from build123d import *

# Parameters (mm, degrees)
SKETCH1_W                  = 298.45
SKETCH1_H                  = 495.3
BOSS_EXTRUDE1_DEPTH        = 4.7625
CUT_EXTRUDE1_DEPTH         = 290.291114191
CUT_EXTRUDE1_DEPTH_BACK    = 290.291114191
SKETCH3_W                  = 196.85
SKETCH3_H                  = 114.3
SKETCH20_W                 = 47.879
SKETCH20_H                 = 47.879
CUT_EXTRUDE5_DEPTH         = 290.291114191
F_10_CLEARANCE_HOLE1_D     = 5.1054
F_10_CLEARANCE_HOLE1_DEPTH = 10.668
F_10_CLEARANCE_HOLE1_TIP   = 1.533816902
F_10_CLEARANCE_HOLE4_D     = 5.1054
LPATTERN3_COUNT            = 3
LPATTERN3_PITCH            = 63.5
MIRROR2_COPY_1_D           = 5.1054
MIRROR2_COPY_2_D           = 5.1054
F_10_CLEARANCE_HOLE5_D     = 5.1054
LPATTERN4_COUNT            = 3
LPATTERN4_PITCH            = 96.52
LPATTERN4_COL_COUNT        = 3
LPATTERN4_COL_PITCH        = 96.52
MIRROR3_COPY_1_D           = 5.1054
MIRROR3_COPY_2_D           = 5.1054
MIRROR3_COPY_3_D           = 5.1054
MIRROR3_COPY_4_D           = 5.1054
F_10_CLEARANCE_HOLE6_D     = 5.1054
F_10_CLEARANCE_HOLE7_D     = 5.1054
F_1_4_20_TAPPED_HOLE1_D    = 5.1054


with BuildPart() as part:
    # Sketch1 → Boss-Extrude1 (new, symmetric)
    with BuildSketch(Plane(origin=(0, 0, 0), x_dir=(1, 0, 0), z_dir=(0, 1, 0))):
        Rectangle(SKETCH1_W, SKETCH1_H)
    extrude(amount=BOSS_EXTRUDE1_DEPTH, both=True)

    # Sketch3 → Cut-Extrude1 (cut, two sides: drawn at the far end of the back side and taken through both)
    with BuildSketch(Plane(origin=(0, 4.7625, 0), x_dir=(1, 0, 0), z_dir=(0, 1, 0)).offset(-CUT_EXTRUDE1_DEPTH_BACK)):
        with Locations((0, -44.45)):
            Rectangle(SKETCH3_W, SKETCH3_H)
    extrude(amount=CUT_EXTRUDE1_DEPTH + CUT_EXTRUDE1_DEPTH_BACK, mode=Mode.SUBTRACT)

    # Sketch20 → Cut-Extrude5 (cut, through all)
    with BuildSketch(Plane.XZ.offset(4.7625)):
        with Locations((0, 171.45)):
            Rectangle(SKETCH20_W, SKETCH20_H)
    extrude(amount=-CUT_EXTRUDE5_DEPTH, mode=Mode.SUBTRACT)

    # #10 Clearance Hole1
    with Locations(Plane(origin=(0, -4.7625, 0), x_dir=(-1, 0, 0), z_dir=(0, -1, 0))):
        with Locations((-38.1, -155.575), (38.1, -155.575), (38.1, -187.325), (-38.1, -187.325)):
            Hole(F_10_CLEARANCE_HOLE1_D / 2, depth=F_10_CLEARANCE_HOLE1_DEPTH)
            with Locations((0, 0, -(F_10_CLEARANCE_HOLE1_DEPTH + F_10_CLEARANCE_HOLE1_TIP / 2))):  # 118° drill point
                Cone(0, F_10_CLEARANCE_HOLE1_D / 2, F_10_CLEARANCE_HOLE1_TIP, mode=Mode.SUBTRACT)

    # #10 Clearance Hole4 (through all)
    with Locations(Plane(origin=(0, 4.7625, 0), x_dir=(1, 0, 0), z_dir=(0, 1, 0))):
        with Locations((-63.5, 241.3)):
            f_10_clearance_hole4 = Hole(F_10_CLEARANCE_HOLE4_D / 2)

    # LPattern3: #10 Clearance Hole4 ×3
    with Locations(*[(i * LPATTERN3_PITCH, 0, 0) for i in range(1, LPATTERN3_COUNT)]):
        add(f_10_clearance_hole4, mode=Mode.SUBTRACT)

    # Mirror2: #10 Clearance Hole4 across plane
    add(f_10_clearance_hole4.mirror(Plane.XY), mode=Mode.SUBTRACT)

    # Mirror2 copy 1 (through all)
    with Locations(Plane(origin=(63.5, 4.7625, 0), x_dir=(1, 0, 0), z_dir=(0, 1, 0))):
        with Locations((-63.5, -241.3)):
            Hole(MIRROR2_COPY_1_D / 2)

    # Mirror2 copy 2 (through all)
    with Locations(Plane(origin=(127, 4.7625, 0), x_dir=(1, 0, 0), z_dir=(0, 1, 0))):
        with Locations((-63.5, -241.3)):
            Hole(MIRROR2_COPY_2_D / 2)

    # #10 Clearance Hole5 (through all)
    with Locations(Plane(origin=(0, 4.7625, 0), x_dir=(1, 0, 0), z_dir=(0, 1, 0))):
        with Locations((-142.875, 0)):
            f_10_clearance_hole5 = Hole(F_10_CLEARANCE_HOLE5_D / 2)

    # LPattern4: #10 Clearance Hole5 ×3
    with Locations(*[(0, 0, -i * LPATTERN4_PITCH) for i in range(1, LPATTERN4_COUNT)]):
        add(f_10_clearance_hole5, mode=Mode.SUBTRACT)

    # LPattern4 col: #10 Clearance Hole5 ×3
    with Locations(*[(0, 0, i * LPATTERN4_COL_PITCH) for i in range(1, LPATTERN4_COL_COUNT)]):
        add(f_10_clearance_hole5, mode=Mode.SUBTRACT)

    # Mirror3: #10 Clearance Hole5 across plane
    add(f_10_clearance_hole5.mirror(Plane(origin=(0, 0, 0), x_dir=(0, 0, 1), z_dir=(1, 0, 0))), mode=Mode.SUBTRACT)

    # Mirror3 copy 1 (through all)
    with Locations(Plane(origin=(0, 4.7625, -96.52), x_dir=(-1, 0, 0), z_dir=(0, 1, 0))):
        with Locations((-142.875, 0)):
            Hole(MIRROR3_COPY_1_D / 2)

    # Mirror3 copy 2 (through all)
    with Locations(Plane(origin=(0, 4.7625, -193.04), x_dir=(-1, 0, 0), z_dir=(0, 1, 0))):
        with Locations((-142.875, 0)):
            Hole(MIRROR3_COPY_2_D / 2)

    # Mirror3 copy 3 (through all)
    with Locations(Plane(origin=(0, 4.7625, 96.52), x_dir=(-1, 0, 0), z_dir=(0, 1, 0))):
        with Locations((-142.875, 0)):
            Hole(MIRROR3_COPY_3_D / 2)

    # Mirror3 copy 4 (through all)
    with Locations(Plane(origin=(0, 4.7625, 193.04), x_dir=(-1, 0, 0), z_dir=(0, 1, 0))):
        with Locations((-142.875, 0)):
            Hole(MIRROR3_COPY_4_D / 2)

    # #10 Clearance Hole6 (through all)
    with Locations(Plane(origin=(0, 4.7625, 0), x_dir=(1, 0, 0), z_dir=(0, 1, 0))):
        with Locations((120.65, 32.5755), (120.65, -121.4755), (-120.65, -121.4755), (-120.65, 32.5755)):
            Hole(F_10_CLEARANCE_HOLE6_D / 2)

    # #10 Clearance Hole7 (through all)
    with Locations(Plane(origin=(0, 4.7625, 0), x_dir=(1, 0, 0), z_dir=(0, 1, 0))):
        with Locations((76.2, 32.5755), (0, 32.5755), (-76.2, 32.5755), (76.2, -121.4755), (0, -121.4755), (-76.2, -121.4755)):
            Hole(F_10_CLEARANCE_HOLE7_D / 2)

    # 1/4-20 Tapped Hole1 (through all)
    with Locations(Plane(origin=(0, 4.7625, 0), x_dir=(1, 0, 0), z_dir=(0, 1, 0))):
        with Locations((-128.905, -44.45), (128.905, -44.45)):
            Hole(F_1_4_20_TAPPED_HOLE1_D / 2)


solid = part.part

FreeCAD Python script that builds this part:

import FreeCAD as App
import Part
import Sketcher

V = App.Vector
Q = App.Units.Quantity


def add_polygon(sketch, points):
    """Adds a closed chain of lines whose ends are joined by coincident constraints."""
    first, n = sketch.GeometryCount, len(points)
    for a, b in zip(points, points[1:] + points[:1]):
        sketch.addGeometry(Part.LineSegment(App.Vector(*a, 0), App.Vector(*b, 0)), False)
    for i in range(n):
        sketch.addConstraint(Sketcher.Constraint("Coincident", first + i, 2, first + (i + 1) % n, 1))

doc = App.newDocument("Part")
body = doc.addObject("PartDesign::Body", "Body")

sketch1 = body.newObject("Sketcher::SketchObject", "Sketch")
sketch1.AttachmentSupport = (doc.getObject("XZ_Plane"), [""])
sketch1.MapMode = "FlatFace"
add_polygon(sketch1, [(-149, -248), (-149, 248), (149, 248), (149, -248)])
sketch1.addConstraint([
    Sketcher.Constraint("Vertical", 0),
    Sketcher.Constraint("Horizontal", 1),
    Sketcher.Constraint("Vertical", 2),
    Sketcher.Constraint("Horizontal", 3),
    Sketcher.Constraint("Symmetric", 0, 2, 2, 2, -1, 1),
    Sketcher.Constraint("DistanceY", 0, 1, 0, 2, Q("19.5 in")),
    Sketcher.Constraint("DistanceX", 1, 1, 1, 2, Q("11.75 in")),
])
pad1 = body.newObject("PartDesign::Pad", "Pad")
pad1.Profile = sketch1
pad1.Length = Q("0.375 in")
pad1.Midplane = True

sketch2 = body.newObject("Sketcher::SketchObject", "Sketch001")
sketch2.AttachmentSupport = (doc.getObject("XZ_Plane"), [""])
sketch2.MapMode = "FlatFace"
sketch2.AttachmentOffset = App.Placement(V(0, 0, -0.1875 * 25.4), App.Rotation())
add_polygon(sketch2, [(-98, -13), (-98, 102), (98, 102), (98, -13)])
sketch2.addConstraint([
    Sketcher.Constraint("Vertical", 0),
    Sketcher.Constraint("Horizontal", 1),
    Sketcher.Constraint("Vertical", 2),
    Sketcher.Constraint("Horizontal", 3),
    Sketcher.Constraint("DistanceY", 0, 1, 0, 2, Q("4.5 in")),
    Sketcher.Constraint("DistanceY", -1, 1, 0, 2, Q("4 in")),
    Sketcher.Constraint("DistanceX", 1, 1, 1, 2, Q("7.75 in")),
    Sketcher.Constraint("DistanceX", 0, 2, -1, 1, Q("3.875 in")),
])
pocket1 = body.newObject("PartDesign::Pocket", "Pocket")
pocket1.Profile = sketch2
pocket1.Type = "ThroughAll"
pocket1.Midplane = True

sketch3 = body.newObject("Sketcher::SketchObject", "Sketch002")
sketch3.AttachmentSupport = (doc.getObject("XZ_Plane"), [""])
sketch3.MapMode = "FlatFace"
sketch3.AttachmentOffset = App.Placement(V(0, 0, 0.1875 * 25.4), App.Rotation())
add_polygon(sketch3, [(-24, 195), (-24, 148), (24, 148), (24, 195)])
sketch3.addConstraint([
    Sketcher.Constraint("Vertical", 0),
    Sketcher.Constraint("Horizontal", 1),
    Sketcher.Constraint("Vertical", 2),
    Sketcher.Constraint("Horizontal", 3),
    Sketcher.Constraint("Equal", 3, 0),
    Sketcher.Constraint("DistanceX", 1, 1, 1, 2, Q("1.885 in")),
    Sketcher.Constraint("DistanceX", 0, 2, -1, 1, Q("0.9425 in")),
    Sketcher.Constraint("DistanceY", -1, 1, 0, 2, Q("5.8075 in")),
])
pocket2 = body.newObject("PartDesign::Pocket", "Pocket001")
pocket2.Profile = sketch3
pocket2.Type = "ThroughAll"

sketch4 = body.newObject("Sketcher::SketchObject", "Sketch003")
sketch4.AttachmentSupport = (doc.getObject("XZ_Plane"), [""])
sketch4.MapMode = "FlatFace"
sketch4.AttachmentOffset = App.Placement(V(0, 0, 0.1875 * 25.4), App.Rotation())
sketch4.addGeometry([
    Part.Circle(V(38.1, 155.6, 0), V(0, 0, 1), 2.6),
    Part.Circle(V(-38.1, 155.6, 0), V(0, 0, 1), 2.6),
    Part.Circle(V(-38.1, 187.3, 0), V(0, 0, 1), 2.6),
    Part.Circle(V(38.1, 187.3, 0), V(0, 0, 1), 2.6),
], False)
sketch4.addConstraint([
    Sketcher.Constraint("Equal", 0, 1),
    Sketcher.Constraint("Equal", 1, 2),
    Sketcher.Constraint("Equal", 2, 3),
    Sketcher.Constraint("Symmetric", 0, 3, 1, 3, -2),
    Sketcher.Constraint("Symmetric", 2, 3, 3, 3, -2),
    Sketcher.Constraint("Vertical", 1, 3, 2, 3),
    Sketcher.Constraint("Diameter", 0, Q("0.201 in")),
    Sketcher.Constraint("DistanceX", 1, 3, 0, 3, Q("3 in")),
    Sketcher.Constraint("DistanceY", 1, 3, 2, 3, Q("1.25 in")),
    Sketcher.Constraint("DistanceY", -1, 1, 0, 3, Q("6.125 in")),
])
doc.recompute()
hole = body.newObject("PartDesign::Hole", "Hole")
hole.Profile = sketch4
hole.ThreadType = "None"
hole.Diameter = Q("0.201 in")
hole.DepthType = "Dimension"
hole.Depth = Q("0.42 in")
hole.DrillPoint = "Angled"
hole.DrillPointAngle = 118

sketch5 = body.newObject("Sketcher::SketchObject", "Sketch004")
sketch5.AttachmentSupport = (doc.getObject("XZ_Plane"), [""])
sketch5.MapMode = "FlatFace"
sketch5.AttachmentOffset = App.Placement(V(0, 0, -0.1875 * 25.4), App.Rotation())
sketch5.addGeometry(Part.Circle(V(-63.5, -241.3, 0), V(0, 0, 1), 2.6), False)
sketch5.addConstraint([
    Sketcher.Constraint("Diameter", 0, Q("0.201 in")),
    Sketcher.Constraint("DistanceX", 0, 3, -1, 1, Q("2.5 in")),
    Sketcher.Constraint("DistanceY", 0, 3, -1, 1, Q("9.5 in")),
])
doc.recompute()
hole2 = body.newObject("PartDesign::Hole", "Hole001")
hole2.Profile = sketch5
hole2.ThreadType = "None"
hole2.Diameter = Q("0.201 in")
hole2.DepthType = "ThroughAll"
hole2.Reversed = True
doc.recompute()

linearpattern = body.newObject("PartDesign::LinearPattern", "LinearPattern")
linearpattern.Originals = [hole2]
linearpattern.Direction = (doc.getObject("X_Axis"), [""])
linearpattern.Mode = "offset"
linearpattern.Offset = Q("2.5 in")
linearpattern.Occurrences = 3
body.Tip = linearpattern
doc.recompute()

mirrored = body.newObject("PartDesign::Mirrored", "Mirrored")
mirrored.Originals = [hole2]
mirrored.MirrorPlane = (doc.getObject("XY_Plane"), [""])
body.Tip = mirrored

sketch6 = body.newObject("Sketcher::SketchObject", "Sketch005")
sketch6.AttachmentSupport = (doc.getObject("XZ_Plane"), [""])
sketch6.MapMode = "FlatFace"
sketch6.AttachmentOffset = App.Placement(V(0, 0, -0.1875 * 25.4), App.Rotation())
sketch6.addGeometry(Part.Circle(V(0, 241.3, 0), V(0, 0, 1), 2.6), False)
sketch6.addConstraint([
    Sketcher.Constraint("PointOnObject", 0, 3, -2),
    Sketcher.Constraint("Diameter", 0, Q("0.201 in")),
    Sketcher.Constraint("DistanceY", -1, 1, 0, 3, Q("9.5 in")),
])
doc.recompute()
hole3 = body.newObject("PartDesign::Hole", "Hole002")
hole3.Profile = sketch6
hole3.ThreadType = "None"
hole3.Diameter = Q("0.201 in")
hole3.DepthType = "ThroughAll"
hole3.Reversed = True

sketch7 = body.newObject("Sketcher::SketchObject", "Sketch006")
sketch7.AttachmentSupport = (doc.getObject("XZ_Plane"), [""])
sketch7.MapMode = "FlatFace"
sketch7.AttachmentOffset = App.Placement(V(0, 0, -0.1875 * 25.4), App.Rotation())
sketch7.addGeometry(Part.Circle(V(63.5, 241.3, 0), V(0, 0, 1), 2.6), False)
sketch7.addConstraint([
    Sketcher.Constraint("Diameter", 0, Q("0.201 in")),
    Sketcher.Constraint("DistanceX", -1, 1, 0, 3, Q("2.5 in")),
    Sketcher.Constraint("DistanceY", -1, 1, 0, 3, Q("9.5 in")),
])
doc.recompute()
hole4 = body.newObject("PartDesign::Hole", "Hole003")
hole4.Profile = sketch7
hole4.ThreadType = "None"
hole4.Diameter = Q("0.201 in")
hole4.DepthType = "ThroughAll"
hole4.Reversed = True

sketch8 = body.newObject("Sketcher::SketchObject", "Sketch007")
sketch8.AttachmentSupport = (doc.getObject("XZ_Plane"), [""])
sketch8.MapMode = "FlatFace"
sketch8.AttachmentOffset = App.Placement(V(0, 0, -0.1875 * 25.4), App.Rotation())
sketch8.addGeometry(Part.Circle(V(-142.9, 0, 0), V(0, 0, 1), 2.6), False)
sketch8.addConstraint([
    Sketcher.Constraint("PointOnObject", 0, 3, -1),
    Sketcher.Constraint("Diameter", 0, Q("0.201 in")),
    Sketcher.Constraint("DistanceX", 0, 3, -1, 1, Q("5.625 in")),
])
doc.recompute()
hole5 = body.newObject("PartDesign::Hole", "Hole004")
hole5.Profile = sketch8
hole5.ThreadType = "None"
hole5.Diameter = Q("0.201 in")
hole5.DepthType = "ThroughAll"
hole5.Reversed = True
doc.recompute()

linearpattern2 = body.newObject("PartDesign::LinearPattern", "LinearPattern001")
linearpattern2.Originals = [hole5]
linearpattern2.Direction = (doc.getObject("Z_Axis"), [""])
linearpattern2.Mode = "offset"
linearpattern2.Offset = Q("3.8 in")
linearpattern2.Occurrences = 3
linearpattern2.Reversed = True
body.Tip = linearpattern2
doc.recompute()

linearpattern3 = body.newObject("PartDesign::LinearPattern", "LinearPattern002")
linearpattern3.Originals = [hole5]
linearpattern3.Direction = (doc.getObject("Z_Axis"), [""])
linearpattern3.Mode = "offset"
linearpattern3.Offset = Q("3.8 in")
linearpattern3.Occurrences = 3
body.Tip = linearpattern3
doc.recompute()

mirrored2 = body.newObject("PartDesign::Mirrored", "Mirrored001")
mirrored2.Originals = [hole5]
mirrored2.MirrorPlane = (doc.getObject("YZ_Plane"), [""])
body.Tip = mirrored2

sketch9 = body.newObject("Sketcher::SketchObject", "Sketch008")
sketch9.AttachmentSupport = (doc.getObject("XZ_Plane"), [""])
sketch9.MapMode = "FlatFace"
sketch9.AttachmentOffset = App.Placement(V(0, 0, -0.1875 * 25.4), App.Rotation())
sketch9.addGeometry(Part.Circle(V(142.9, -96.5, 0), V(0, 0, 1), 2.6), False)
sketch9.addConstraint([
    Sketcher.Constraint("Diameter", 0, Q("0.201 in")),
    Sketcher.Constraint("DistanceY", 0, 3, -1, 1, Q("3.8 in")),
    Sketcher.Constraint("DistanceX", -1, 1, 0, 3, Q("5.625 in")),
])
doc.recompute()
hole6 = body.newObject("PartDesign::Hole", "Hole005")
hole6.Profile = sketch9
hole6.ThreadType = "None"
hole6.Diameter = Q("0.201 in")
hole6.DepthType = "ThroughAll"
hole6.Reversed = True

sketch10 = body.newObject("Sketcher::SketchObject", "Sketch009")
sketch10.AttachmentSupport = (doc.getObject("XZ_Plane"), [""])
sketch10.MapMode = "FlatFace"
sketch10.AttachmentOffset = App.Placement(V(0, 0, -0.1875 * 25.4), App.Rotation())
sketch10.addGeometry(Part.Circle(V(142.9, -193, 0), V(0, 0, 1), 2.6), False)
sketch10.addConstraint([
    Sketcher.Constraint("Diameter", 0, Q("0.201 in")),
    Sketcher.Constraint("DistanceY", 0, 3, -1, 1, Q("7.6 in")),
    Sketcher.Constraint("DistanceX", -1, 1, 0, 3, Q("5.625 in")),
])
doc.recompute()
hole7 = body.newObject("PartDesign::Hole", "Hole006")
hole7.Profile = sketch10
hole7.ThreadType = "None"
hole7.Diameter = Q("0.201 in")
hole7.DepthType = "ThroughAll"
hole7.Reversed = True

sketch11 = body.newObject("Sketcher::SketchObject", "Sketch010")
sketch11.AttachmentSupport = (doc.getObject("XZ_Plane"), [""])
sketch11.MapMode = "FlatFace"
sketch11.AttachmentOffset = App.Placement(V(0, 0, -0.1875 * 25.4), App.Rotation())
sketch11.addGeometry(Part.Circle(V(142.9, 96.5, 0), V(0, 0, 1), 2.6), False)
sketch11.addConstraint([
    Sketcher.Constraint("Diameter", 0, Q("0.201 in")),
    Sketcher.Constraint("DistanceY", -1, 1, 0, 3, Q("3.8 in")),
    Sketcher.Constraint("DistanceX", -1, 1, 0, 3, Q("5.625 in")),
])
doc.recompute()
hole8 = body.newObject("PartDesign::Hole", "Hole007")
hole8.Profile = sketch11
hole8.ThreadType = "None"
hole8.Diameter = Q("0.201 in")
hole8.DepthType = "ThroughAll"
hole8.Reversed = True

sketch12 = body.newObject("Sketcher::SketchObject", "Sketch011")
sketch12.AttachmentSupport = (doc.getObject("XZ_Plane"), [""])
sketch12.MapMode = "FlatFace"
sketch12.AttachmentOffset = App.Placement(V(0, 0, -0.1875 * 25.4), App.Rotation())
sketch12.addGeometry(Part.Circle(V(142.9, 193, 0), V(0, 0, 1), 2.6), False)
sketch12.addConstraint([
    Sketcher.Constraint("Diameter", 0, Q("0.201 in")),
    Sketcher.Constraint("DistanceY", -1, 1, 0, 3, Q("7.6 in")),
    Sketcher.Constraint("DistanceX", -1, 1, 0, 3, Q("5.625 in")),
])
doc.recompute()
hole9 = body.newObject("PartDesign::Hole", "Hole008")
hole9.Profile = sketch12
hole9.ThreadType = "None"
hole9.Diameter = Q("0.201 in")
hole9.DepthType = "ThroughAll"
hole9.Reversed = True

sketch13 = body.newObject("Sketcher::SketchObject", "Sketch012")
sketch13.AttachmentSupport = (doc.getObject("XZ_Plane"), [""])
sketch13.MapMode = "FlatFace"
sketch13.AttachmentOffset = App.Placement(V(0, 0, -0.1875 * 25.4), App.Rotation())
sketch13.addGeometry([
    Part.Circle(V(120.7, -32.6, 0), V(0, 0, 1), 2.6),
    Part.Circle(V(120.7, 121.5, 0), V(0, 0, 1), 2.6),
    Part.Circle(V(-120.7, 121.5, 0), V(0, 0, 1), 2.6),
    Part.Circle(V(-120.7, -32.6, 0), V(0, 0, 1), 2.6),
], False)
sketch13.addConstraint([
    Sketcher.Constraint("Equal", 0, 1),
    Sketcher.Constraint("Equal", 1, 2),
    Sketcher.Constraint("Equal", 2, 3),
    Sketcher.Constraint("Symmetric", 1, 3, 2, 3, -2),
    Sketcher.Constraint("Symmetric", 0, 3, 3, 3, -2),
    Sketcher.Constraint("Vertical", 0, 3, 1, 3),
    Sketcher.Constraint("Diameter", 0, Q("0.201 in")),
    Sketcher.Constraint("DistanceX", 2, 3, 1, 3, Q("9.5 in")),
    Sketcher.Constraint("DistanceY", 0, 3, 1, 3, Q("6.065 in")),
    Sketcher.Constraint("DistanceY", 0, 3, -1, 1, Q("1.2825 in")),
])
doc.recompute()
hole10 = body.newObject("PartDesign::Hole", "Hole009")
hole10.Profile = sketch13
hole10.ThreadType = "None"
hole10.Diameter = Q("0.201 in")
hole10.DepthType = "ThroughAll"
hole10.Reversed = True

sketch14 = body.newObject("Sketcher::SketchObject", "Sketch013")
sketch14.AttachmentSupport = (doc.getObject("XZ_Plane"), [""])
sketch14.MapMode = "FlatFace"
sketch14.AttachmentOffset = App.Placement(V(0, 0, -0.1875 * 25.4), App.Rotation())
sketch14.addGeometry([
    Part.Circle(V(76.2, -32.6, 0), V(0, 0, 1), 2.6),
    Part.Circle(V(0, -32.6, 0), V(0, 0, 1), 2.6),
    Part.Circle(V(-76.2, -32.6, 0), V(0, 0, 1), 2.6),
    Part.Circle(V(76.2, 121.5, 0), V(0, 0, 1), 2.6),
    Part.Circle(V(0, 121.5, 0), V(0, 0, 1), 2.6),
    Part.Circle(V(-76.2, 121.5, 0), V(0, 0, 1), 2.6),
], False)
sketch14.addConstraint([
    Sketcher.Constraint("Equal", 0, 1),
    Sketcher.Constraint("Equal", 1, 2),
    Sketcher.Constraint("Equal", 2, 3),
    Sketcher.Constraint("Equal", 3, 4),
    Sketcher.Constraint("Equal", 4, 5),
    Sketcher.Constraint("Symmetric", 0, 3, 2, 3, -2),
    Sketcher.Constraint("Symmetric", 3, 3, 5, 3, -2),
    Sketcher.Constraint("PointOnObject", 1, 3, -2),
    Sketcher.Constraint("PointOnObject", 4, 3, -2),
    Sketcher.Constraint("Horizontal", 0, 3, 1, 3),
    Sketcher.Constraint("Horizontal", 3, 3, 4, 3),
    Sketcher.Constraint("Vertical", 0, 3, 3, 3),
    Sketcher.Constraint("Diameter", 0, Q("0.201 in")),
    Sketcher.Constraint("DistanceX", -1, 1, 0, 3, Q("3 in")),
    Sketcher.Constraint("DistanceY", 0, 3, 3, 3, Q("6.065 in")),
    Sketcher.Constraint("DistanceY", 0, 3, -1, 1, Q("1.2825 in")),
])
doc.recompute()
hole11 = body.newObject("PartDesign::Hole", "Hole010")
hole11.Profile = sketch14
hole11.ThreadType = "None"
hole11.Diameter = Q("0.201 in")
hole11.DepthType = "ThroughAll"
hole11.Reversed = True

sketch15 = body.newObject("Sketcher::SketchObject", "Sketch014")
sketch15.AttachmentSupport = (doc.getObject("XZ_Plane"), [""])
sketch15.MapMode = "FlatFace"
sketch15.AttachmentOffset = App.Placement(V(0, 0, -0.1875 * 25.4), App.Rotation())
sketch15.addGeometry([
    Part.Circle(V(-128.9, 44.5, 0), V(0, 0, 1), 2.6),
    Part.Circle(V(128.9, 44.5, 0), V(0, 0, 1), 2.6),
], False)
sketch15.addConstraint([
    Sketcher.Constraint("Equal", 0, 1),
    Sketcher.Constraint("Symmetric", 0, 3, 1, 3, -2),
    Sketcher.Constraint("Diameter", 0, Q("0.201 in")),
    Sketcher.Constraint("DistanceY", -1, 1, 0, 3, Q("1.75 in")),
    Sketcher.Constraint("DistanceX", 0, 3, 1, 3, Q("10.15 in")),
])
doc.recompute()
hole12 = body.newObject("PartDesign::Hole", "Hole011")
hole12.Profile = sketch15
hole12.ThreadType = "None"
hole12.Diameter = Q("0.201 in")
hole12.DepthType = "ThroughAll"
hole12.Reversed = True

doc.recompute()
